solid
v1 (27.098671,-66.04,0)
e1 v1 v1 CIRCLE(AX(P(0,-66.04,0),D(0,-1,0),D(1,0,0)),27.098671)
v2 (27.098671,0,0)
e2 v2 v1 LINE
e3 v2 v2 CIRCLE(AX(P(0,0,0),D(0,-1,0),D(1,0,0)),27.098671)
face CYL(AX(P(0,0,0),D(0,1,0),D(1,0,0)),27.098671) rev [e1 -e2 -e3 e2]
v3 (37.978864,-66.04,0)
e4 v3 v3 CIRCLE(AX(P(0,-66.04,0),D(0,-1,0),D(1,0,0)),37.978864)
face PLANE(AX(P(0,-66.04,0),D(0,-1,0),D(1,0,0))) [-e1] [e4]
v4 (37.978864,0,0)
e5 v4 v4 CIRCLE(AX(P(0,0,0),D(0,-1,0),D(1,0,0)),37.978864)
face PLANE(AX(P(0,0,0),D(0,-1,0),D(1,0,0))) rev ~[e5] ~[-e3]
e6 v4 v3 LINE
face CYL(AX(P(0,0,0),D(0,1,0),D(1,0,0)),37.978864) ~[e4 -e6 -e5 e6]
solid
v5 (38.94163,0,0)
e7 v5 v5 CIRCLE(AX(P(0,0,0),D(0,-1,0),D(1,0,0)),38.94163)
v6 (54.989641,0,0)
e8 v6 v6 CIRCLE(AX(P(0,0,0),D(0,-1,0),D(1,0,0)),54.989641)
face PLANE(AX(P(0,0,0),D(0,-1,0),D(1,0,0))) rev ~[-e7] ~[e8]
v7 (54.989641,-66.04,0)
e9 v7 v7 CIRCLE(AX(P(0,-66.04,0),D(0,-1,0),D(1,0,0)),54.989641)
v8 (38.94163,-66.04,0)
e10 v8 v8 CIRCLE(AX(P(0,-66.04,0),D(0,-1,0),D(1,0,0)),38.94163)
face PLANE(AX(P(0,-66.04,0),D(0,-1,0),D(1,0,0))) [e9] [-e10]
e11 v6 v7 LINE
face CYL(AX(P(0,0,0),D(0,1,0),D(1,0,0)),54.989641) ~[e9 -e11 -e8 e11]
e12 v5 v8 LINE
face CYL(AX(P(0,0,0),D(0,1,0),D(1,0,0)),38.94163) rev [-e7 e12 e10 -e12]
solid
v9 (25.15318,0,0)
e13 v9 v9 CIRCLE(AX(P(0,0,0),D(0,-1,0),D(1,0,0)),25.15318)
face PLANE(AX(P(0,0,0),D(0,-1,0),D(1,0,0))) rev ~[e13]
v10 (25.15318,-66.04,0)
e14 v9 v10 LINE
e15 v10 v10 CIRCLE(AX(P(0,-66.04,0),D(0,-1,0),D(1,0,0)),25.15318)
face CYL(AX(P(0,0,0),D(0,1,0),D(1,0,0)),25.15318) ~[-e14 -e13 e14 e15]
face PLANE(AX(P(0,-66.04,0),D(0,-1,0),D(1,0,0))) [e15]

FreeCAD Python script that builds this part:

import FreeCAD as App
import Part
import Sketcher
from FreeCAD import Vector
Q = App.Units.Quantity

doc = App.newDocument("Part")
body = doc.addObject("PartDesign::Body", "Body")
body.AllowCompound = True

# Sketch on XZ plane
sketch1 = doc.addObject("Sketcher::SketchObject", "Sketch")
body.addObject(sketch1)
sketch1.AttachmentSupport = (doc.XZ_Plane, [""])
sketch1.MapMode = "FlatFace"
sketch1.addGeometry(Part.Circle(Vector(0, 0, 0), Vector(0, 0, 1), 55), False)
sketch1.addGeometry(Part.Circle(Vector(0, 0, 0), Vector(0, 0, 1), 39), False)
sketch1.addGeometry(Part.Circle(Vector(0, 0, 0), Vector(0, 0, 1), 38), False)
sketch1.addGeometry(Part.Circle(Vector(0, 0, 0), Vector(0, 0, 1), 27), False)
sketch1.addGeometry(Part.Circle(Vector(0, 0, 0), Vector(0, 0, 1), 25), False)
sketch1.addConstraint(Sketcher.Constraint("Coincident", 0, 3, -1, 1))
sketch1.addConstraint(Sketcher.Constraint("Coincident", 1, 3, -1, 1))
sketch1.addConstraint(Sketcher.Constraint("Coincident", 2, 3, -1, 1))
sketch1.addConstraint(Sketcher.Constraint("Coincident", 3, 3, -1, 1))
sketch1.addConstraint(Sketcher.Constraint("Coincident", 4, 3, -1, 1))
sketch1.addConstraint(Sketcher.Constraint("Diameter", 0, 109.979282))
sketch1.addConstraint(Sketcher.Constraint("Diameter", 1, 77.88326))
sketch1.addConstraint(Sketcher.Constraint("Diameter", 2, 75.957728))
sketch1.addConstraint(Sketcher.Constraint("Diameter", 4, 50.30636))
sketch1.addConstraint(Sketcher.Constraint("Diameter", 3, 54.197342))
pad1 = doc.addObject("PartDesign::Pad", "Pad")
body.addObject(pad1)
pad1.Profile = sketch1
pad1.Length = Q("2.6 in")

doc.recompute()
